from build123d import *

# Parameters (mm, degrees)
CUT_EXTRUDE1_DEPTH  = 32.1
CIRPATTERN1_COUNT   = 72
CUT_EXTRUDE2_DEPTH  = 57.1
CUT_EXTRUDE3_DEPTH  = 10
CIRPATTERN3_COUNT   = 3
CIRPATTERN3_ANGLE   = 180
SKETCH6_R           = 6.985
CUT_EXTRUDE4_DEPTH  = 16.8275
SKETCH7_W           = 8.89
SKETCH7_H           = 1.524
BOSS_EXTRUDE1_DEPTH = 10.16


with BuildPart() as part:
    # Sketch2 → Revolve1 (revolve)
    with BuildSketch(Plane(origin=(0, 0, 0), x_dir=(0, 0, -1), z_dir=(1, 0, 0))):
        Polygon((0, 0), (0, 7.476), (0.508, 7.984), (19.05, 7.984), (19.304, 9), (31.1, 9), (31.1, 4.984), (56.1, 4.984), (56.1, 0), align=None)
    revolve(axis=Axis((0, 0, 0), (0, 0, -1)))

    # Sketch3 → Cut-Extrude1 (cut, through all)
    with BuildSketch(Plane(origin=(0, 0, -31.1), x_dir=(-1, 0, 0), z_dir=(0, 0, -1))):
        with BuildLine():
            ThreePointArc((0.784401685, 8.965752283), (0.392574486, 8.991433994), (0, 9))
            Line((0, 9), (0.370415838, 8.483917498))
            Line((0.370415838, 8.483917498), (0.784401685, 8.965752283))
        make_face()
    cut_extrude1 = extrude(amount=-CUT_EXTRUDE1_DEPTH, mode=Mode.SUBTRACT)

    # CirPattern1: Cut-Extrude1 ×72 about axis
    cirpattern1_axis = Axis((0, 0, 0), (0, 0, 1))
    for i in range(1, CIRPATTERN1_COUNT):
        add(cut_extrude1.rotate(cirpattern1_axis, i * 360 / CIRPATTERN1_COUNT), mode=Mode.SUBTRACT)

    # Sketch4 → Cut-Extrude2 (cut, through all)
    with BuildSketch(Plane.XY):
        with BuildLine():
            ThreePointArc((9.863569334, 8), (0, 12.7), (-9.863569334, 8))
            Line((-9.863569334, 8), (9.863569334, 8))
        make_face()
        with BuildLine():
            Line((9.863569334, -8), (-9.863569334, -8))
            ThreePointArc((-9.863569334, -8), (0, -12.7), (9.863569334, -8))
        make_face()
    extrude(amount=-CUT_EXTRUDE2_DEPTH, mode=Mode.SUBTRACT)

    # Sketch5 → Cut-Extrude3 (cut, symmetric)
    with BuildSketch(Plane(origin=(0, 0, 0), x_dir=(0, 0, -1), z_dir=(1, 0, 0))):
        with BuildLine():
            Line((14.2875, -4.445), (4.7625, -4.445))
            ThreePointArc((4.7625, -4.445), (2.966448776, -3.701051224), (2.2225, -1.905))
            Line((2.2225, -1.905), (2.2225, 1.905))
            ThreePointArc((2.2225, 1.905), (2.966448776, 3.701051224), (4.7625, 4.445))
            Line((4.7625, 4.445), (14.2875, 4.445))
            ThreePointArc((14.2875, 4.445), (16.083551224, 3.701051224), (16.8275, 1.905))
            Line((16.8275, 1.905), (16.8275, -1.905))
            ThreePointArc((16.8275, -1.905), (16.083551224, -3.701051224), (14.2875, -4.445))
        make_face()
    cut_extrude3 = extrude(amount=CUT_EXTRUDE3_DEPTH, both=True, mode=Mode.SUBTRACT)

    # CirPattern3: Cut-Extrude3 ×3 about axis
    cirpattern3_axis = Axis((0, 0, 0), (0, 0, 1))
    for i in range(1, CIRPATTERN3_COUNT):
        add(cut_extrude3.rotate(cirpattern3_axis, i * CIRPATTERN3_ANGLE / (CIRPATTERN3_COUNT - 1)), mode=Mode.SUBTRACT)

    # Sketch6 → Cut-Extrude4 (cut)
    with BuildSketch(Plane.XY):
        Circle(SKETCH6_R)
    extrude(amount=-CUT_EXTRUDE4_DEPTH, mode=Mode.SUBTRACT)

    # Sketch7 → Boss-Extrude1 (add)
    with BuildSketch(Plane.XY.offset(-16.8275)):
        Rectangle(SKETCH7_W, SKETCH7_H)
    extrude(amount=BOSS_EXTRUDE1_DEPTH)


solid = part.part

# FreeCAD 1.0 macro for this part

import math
import FreeCAD as App
import Part
import Sketcher

V = App.Vector
Q = App.Units.Quantity


def add_polygon(sketch, points):
    """Adds a closed chain of lines whose ends are joined by coincident constraints."""
    first, n = sketch.GeometryCount, len(points)
    for a, b in zip(points, points[1:] + points[:1]):
        sketch.addGeometry(Part.LineSegment(App.Vector(*a, 0), App.Vector(*b, 0)), False)
    for i in range(n):
        sketch.addConstraint(Sketcher.Constraint("Coincident", first + i, 2, first + (i + 1) % n, 1))

doc = App.newDocument("Part")
body = doc.addObject("PartDesign::Body", "Body")

# Sketch on YZ plane
sketch1 = body.newObject("Sketcher::SketchObject", "Sketch")
sketch1.AttachmentSupport = (doc.getObject("YZ_Plane"), [""])
sketch1.MapMode = "FlatFace"
add_polygon(sketch1, [(7.5, 0), (0, 0), (0, -56.1), (5, -56.1), (5, -31.1), (9, -31.1), (9, -19.3), (8, -19.1), (8, -0.5)])  # lines 0-8
sketch1.addConstraint([
    Sketcher.Constraint("Horizontal", 0),
    Sketcher.Constraint("Vertical", 1),
    Sketcher.Constraint("Horizontal", 2),
    Sketcher.Constraint("Vertical", 3),
    Sketcher.Constraint("Horizontal", 4),
    Sketcher.Constraint("Vertical", 5),
    Sketcher.Constraint("Vertical", 7),
    Sketcher.Constraint("Coincident", 0, 2, -1, 1),
    Sketcher.Constraint("Angle", 8, Q("135 deg")),
    Sketcher.Constraint("DistanceY", 7, 1, 7, 2, Q("0.73 in")),
    Sketcher.Constraint("DistanceY", 5, 2, -1, 1, Q("0.76 in")),
    Sketcher.Constraint("DistanceY", 6, 2, -1, 1, Q("0.75 in")),
    Sketcher.Constraint("DistanceX", 6, 2, 5, 2, Q("0.04 in")),
    Sketcher.Constraint("DistanceX", 0, 2, 0, 1, 7.476),
    Sketcher.Constraint("DistanceX", 2, 1, 2, 2, 4.984),
    Sketcher.Constraint("DistanceY", 1, 2, 1, 1, 56.1),
    Sketcher.Constraint("DistanceY", 3, 1, 3, 2, 25.0),
])
revolution = body.newObject("PartDesign::Revolution", "Revolution")
revolution.Profile = sketch1
revolution.ReferenceAxis = (sketch1, ["V_Axis"])
revolution.Angle = 360

# Sketch on XY plane
sketch2 = body.newObject("Sketcher::SketchObject", "Sketch001")
sketch2.AttachmentSupport = (doc.getObject("XY_Plane"), [""])
sketch2.MapMode = "FlatFace"
sketch2.AttachmentOffset = App.Placement(V(0, 0, -31.1), App.Rotation())
sketch2.addGeometry([
    Part.ArcOfCircle(Part.Circle(V(0, 0, 0), V(0, 0, 1), 9), math.radians(90), math.radians(95)),
    Part.LineSegment(V(0, 9, 0), V(-0.4, 8.5, 0)),
    Part.LineSegment(V(-0.4, 8.5, 0), V(-0.8, 9, 0)),
], False)
sketch2.addConstraint([
    Sketcher.Constraint("Coincident", 0, 1, 1, 1),
    Sketcher.Constraint("Coincident", 1, 2, 2, 1),
    Sketcher.Constraint("Coincident", 2, 2, 0, 2),
    Sketcher.Constraint("Coincident", 0, 3, -1, 1),
    Sketcher.Constraint("PointOnObject", 0, 1, -2),
    Sketcher.Constraint("Equal", 1, 2),
    Sketcher.Constraint("Radius", 0, 9.0),
    Sketcher.Constraint("DistanceX", 2, 2, -1, 1, 0.784402),
    Sketcher.Constraint("Distance", 1, 0.635255),
])
pocket1 = body.newObject("PartDesign::Pocket", "Pocket")
pocket1.Profile = sketch2
pocket1.Type = "ThroughAll"
pocket1.Reversed = True
doc.recompute()

polarpattern = body.newObject("PartDesign::PolarPattern", "PolarPattern")
polarpattern.Originals = [pocket1]
polarpattern.Axis = (doc.getObject("Z_Axis"), [""])
polarpattern.Angle = 360
polarpattern.Occurrences = 72
body.Tip = polarpattern

# Sketch on XY plane
sketch3 = body.newObject("Sketcher::SketchObject", "Sketch002")
sketch3.AttachmentSupport = (doc.getObject("XY_Plane"), [""])
sketch3.MapMode = "FlatFace"
sketch3.addGeometry([
    Part.ArcOfCircle(Part.Circle(V(0, 0, 0), V(0, 0, 1), 13), math.radians(39), math.radians(141)),
    Part.LineSegment(V(-10, 8, 0), V(10, 8, 0)),
    Part.LineSegment(V(10, -8, 0), V(-10, -8, 0)),
    Part.ArcOfCircle(Part.Circle(V(0, 0, 0), V(0, 0, 1), 13), math.radians(-141), math.radians(-39)),
], False)
sketch3.addConstraint([
    Sketcher.Constraint("Coincident", 0, 1, 1, 2),
    Sketcher.Constraint("Coincident", 1, 1, 0, 2),
    Sketcher.Constraint("Coincident", 2, 1, 3, 2),
    Sketcher.Constraint("Coincident", 3, 1, 2, 2),
    Sketcher.Constraint("Horizontal", 1),
    Sketcher.Constraint("Horizontal", 2),
    Sketcher.Constraint("Coincident", 0, 3, -1, 1),
    Sketcher.Constraint("Coincident", 3, 3, -1, 1),
    Sketcher.Constraint("Equal", 0, 3),
    Sketcher.Constraint("Vertical", 0, 1, 2, 1),
    Sketcher.Constraint("Radius", 0, Q("0.5 in")),
    Sketcher.Constraint("DistanceX", 1, 1, 1, 2, 19.727139),
])
pocket2 = body.newObject("PartDesign::Pocket", "Pocket001")
pocket2.Profile = sketch3
pocket2.Type = "ThroughAll"

# Sketch on YZ plane
sketch4 = body.newObject("Sketcher::SketchObject", "Sketch003")
sketch4.AttachmentSupport = (doc.getObject("YZ_Plane"), [""])
sketch4.MapMode = "FlatFace"
sketch4.addGeometry([
    Part.LineSegment(V(-4.4, -4.8, 0), V(-4.4, -14.3, 0)),  # 0
    Part.ArcOfCircle(Part.Circle(V(-1.9, -14.3, 0), V(0, 0, 1), 2.5), math.radians(-180), math.radians(-90)),  # 1
    Part.LineSegment(V(-1.9, -16.8, 0), V(1.9, -16.8, 0)),  # 2
    Part.ArcOfCircle(Part.Circle(V(1.9, -14.3, 0), V(0, 0, 1), 2.5), math.radians(-90), math.radians(0)),  # 3
    Part.LineSegment(V(4.4, -14.3, 0), V(4.4, -4.8, 0)),  # 4
    Part.ArcOfCircle(Part.Circle(V(1.9, -4.8, 0), V(0, 0, 1), 2.5), math.radians(0), math.radians(90)),  # 5
    Part.LineSegment(V(1.9, -2.2, 0), V(-1.9, -2.2, 0)),  # 6
    Part.ArcOfCircle(Part.Circle(V(-1.9, -4.8, 0), V(0, 0, 1), 2.5), math.radians(90), math.radians(180)),  # 7
], False)
sketch4.addConstraint([
    Sketcher.Constraint("Tangent", 0, 2, 1, 1),
    Sketcher.Constraint("Tangent", 1, 2, 2, 1),
    Sketcher.Constraint("Tangent", 2, 2, 3, 1),
    Sketcher.Constraint("Tangent", 3, 2, 4, 1),
    Sketcher.Constraint("Tangent", 4, 2, 5, 1),
    Sketcher.Constraint("Tangent", 5, 2, 6, 1),
    Sketcher.Constraint("Tangent", 6, 2, 7, 1),
    Sketcher.Constraint("Tangent", 7, 2, 0, 1),
    Sketcher.Constraint("Vertical", 0),
    Sketcher.Constraint("Horizontal", 2),
    Sketcher.Constraint("Vertical", 4),
    Sketcher.Constraint("Horizontal", 6),
    Sketcher.Constraint("Equal", 1, 3),
    Sketcher.Constraint("Equal", 3, 5),
    Sketcher.Constraint("Equal", 5, 7),
    Sketcher.Constraint("Radius", 1, Q("0.1 in")),
    Sketcher.Constraint("DistanceX", 2, 1, 2, 2, Q("0.15 in")),
    Sketcher.Constraint("DistanceY", 0, 2, 0, 1, Q("0.375 in")),
    Sketcher.Constraint("DistanceX", 1, 3, -1, 1, Q("0.075 in")),
    Sketcher.Constraint("DistanceY", 1, 3, -1, 1, Q("0.5625 in")),
])
pocket3 = body.newObject("PartDesign::Pocket", "Pocket002")
pocket3.Profile = sketch4
pocket3.Length = 20
pocket3.Midplane = True
doc.recompute()

polarpattern2 = body.newObject("PartDesign::PolarPattern", "PolarPattern001")
polarpattern2.Originals = [pocket3]
polarpattern2.Axis = (doc.getObject("Z_Axis"), [""])
polarpattern2.Angle = 180
polarpattern2.Occurrences = 3
body.Tip = polarpattern2

# Sketch on XY plane
sketch5 = body.newObject("Sketcher::SketchObject", "Sketch004")
sketch5.AttachmentSupport = (doc.getObject("XY_Plane"), [""])
sketch5.MapMode = "FlatFace"
sketch5.addGeometry(Part.Circle(V(0, 0, 0), V(0, 0, 1), 7), False)
sketch5.addConstraint([
    Sketcher.Constraint("Coincident", 0, 3, -1, 1),
    Sketcher.Constraint("Diameter", 0, Q("0.55 in")),
])
pocket4 = body.newObject("PartDesign::Pocket", "Pocket003")
pocket4.Profile = sketch5
pocket4.Length = Q("0.6625 in")

# Sketch on XY plane
sketch6 = body.newObject("Sketcher::SketchObject", "Sketch005")
sketch6.AttachmentSupport = (doc.getObject("XY_Plane"), [""])
sketch6.MapMode = "FlatFace"
sketch6.AttachmentOffset = App.Placement(V(0, 0, -0.6625 * 25.4), App.Rotation())
add_polygon(sketch6, [(-4.4, 0.8), (-4.4, -0.8), (4.4, -0.8), (4.4, 0.8)])  # lines 0-3
sketch6.addConstraint([
    Sketcher.Constraint("Vertical", 0),
    Sketcher.Constraint("Horizontal", 1),
    Sketcher.Constraint("Vertical", 2),
    Sketcher.Constraint("Horizontal", 3),
    Sketcher.Constraint("Symmetric", 0, 2, 2, 2, -1, 1),
    Sketcher.Constraint("DistanceX", 1, 1, 1, 2, Q("0.35 in")),
    Sketcher.Constraint("DistanceY", 0, 2, 0, 1, Q("0.06 in")),
])
pad1 = body.newObject("PartDesign::Pad", "Pad")
pad1.Profile = sketch6
pad1.Length = Q("0.4 in")

doc.recompute()
